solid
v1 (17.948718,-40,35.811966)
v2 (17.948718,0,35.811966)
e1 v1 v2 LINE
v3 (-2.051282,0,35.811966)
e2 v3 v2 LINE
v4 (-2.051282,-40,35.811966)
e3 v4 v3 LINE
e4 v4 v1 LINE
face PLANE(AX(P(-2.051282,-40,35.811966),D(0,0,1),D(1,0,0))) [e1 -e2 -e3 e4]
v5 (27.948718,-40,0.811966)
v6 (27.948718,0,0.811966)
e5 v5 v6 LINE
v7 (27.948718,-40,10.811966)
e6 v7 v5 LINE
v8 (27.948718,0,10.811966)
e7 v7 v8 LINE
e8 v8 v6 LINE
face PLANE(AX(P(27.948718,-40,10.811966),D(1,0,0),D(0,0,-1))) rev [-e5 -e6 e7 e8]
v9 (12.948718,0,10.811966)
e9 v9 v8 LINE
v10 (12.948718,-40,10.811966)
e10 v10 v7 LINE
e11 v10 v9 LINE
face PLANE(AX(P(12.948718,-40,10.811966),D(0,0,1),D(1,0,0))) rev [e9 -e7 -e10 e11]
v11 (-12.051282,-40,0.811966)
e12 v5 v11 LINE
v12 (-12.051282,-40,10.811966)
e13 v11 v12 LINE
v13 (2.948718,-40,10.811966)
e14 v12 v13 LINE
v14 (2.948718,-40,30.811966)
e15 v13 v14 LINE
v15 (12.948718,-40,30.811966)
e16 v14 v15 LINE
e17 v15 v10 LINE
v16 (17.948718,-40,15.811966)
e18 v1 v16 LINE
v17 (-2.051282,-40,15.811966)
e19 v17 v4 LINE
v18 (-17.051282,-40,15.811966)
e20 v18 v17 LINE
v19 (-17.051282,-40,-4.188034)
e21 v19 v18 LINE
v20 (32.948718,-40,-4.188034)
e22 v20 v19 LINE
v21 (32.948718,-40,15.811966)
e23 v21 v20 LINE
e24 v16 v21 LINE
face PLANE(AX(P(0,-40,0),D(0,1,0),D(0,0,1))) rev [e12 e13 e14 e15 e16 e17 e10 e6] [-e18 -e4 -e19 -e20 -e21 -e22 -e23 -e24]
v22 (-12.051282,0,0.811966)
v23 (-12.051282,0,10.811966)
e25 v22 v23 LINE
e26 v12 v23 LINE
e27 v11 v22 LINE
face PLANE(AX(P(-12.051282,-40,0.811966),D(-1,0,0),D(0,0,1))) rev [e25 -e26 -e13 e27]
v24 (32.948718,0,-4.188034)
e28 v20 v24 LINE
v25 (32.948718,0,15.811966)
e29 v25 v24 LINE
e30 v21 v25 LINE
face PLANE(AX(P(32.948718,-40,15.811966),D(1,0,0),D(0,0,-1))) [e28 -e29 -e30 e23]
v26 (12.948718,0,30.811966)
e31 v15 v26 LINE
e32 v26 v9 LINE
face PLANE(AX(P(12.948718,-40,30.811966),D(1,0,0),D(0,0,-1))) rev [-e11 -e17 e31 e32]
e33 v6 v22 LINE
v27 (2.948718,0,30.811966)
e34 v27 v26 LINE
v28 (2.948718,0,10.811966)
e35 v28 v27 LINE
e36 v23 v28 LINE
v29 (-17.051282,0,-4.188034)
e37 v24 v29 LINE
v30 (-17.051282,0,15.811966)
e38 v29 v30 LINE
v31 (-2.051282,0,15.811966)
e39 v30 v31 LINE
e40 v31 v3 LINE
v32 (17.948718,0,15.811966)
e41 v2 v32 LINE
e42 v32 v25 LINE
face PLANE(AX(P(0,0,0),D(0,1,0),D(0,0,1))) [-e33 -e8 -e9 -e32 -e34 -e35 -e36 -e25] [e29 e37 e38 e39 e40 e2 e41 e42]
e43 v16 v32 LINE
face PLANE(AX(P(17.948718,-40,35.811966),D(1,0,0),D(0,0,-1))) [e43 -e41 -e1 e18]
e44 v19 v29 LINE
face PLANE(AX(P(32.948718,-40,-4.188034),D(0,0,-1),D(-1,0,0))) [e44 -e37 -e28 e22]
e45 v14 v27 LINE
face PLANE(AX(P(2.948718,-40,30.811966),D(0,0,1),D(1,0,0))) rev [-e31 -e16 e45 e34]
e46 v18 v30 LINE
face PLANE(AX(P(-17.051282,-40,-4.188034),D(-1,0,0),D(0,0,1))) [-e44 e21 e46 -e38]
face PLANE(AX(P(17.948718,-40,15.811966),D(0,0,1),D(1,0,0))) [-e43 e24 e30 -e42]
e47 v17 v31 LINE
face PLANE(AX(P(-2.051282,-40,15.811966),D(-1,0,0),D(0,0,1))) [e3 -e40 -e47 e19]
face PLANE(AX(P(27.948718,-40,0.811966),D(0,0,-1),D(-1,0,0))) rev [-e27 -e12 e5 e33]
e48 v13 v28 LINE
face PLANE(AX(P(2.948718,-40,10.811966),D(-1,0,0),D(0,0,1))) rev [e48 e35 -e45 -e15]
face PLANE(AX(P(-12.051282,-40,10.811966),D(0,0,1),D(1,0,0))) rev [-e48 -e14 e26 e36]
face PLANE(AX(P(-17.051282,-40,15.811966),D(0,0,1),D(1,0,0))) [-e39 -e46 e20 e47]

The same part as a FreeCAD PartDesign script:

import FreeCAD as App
import Part
import Sketcher

V = App.Vector

doc = App.newDocument("Part")
params = doc.addObject("Spreadsheet::Sheet", "Params")
for row, (alias, value) in enumerate([
    ("sketch1_width", "50 mm"),
    ("sketch1_width2", "15 mm"),
    ("pad1_length", "40 mm"),
    ("sketch2_width", "40 mm"),
    ("sketch2_width2", "15 mm"),
    ("sketch2_height", "20 mm"),
    ("pocket1_length", "40 mm"),
], start=1):
    params.set(f"A{row}", alias)
    params.set(f"B{row}", "=" + value)
    params.setAlias(f"B{row}", alias)

body = doc.addObject("PartDesign::Body", "Body")

sketch1 = body.newObject("Sketcher::SketchObject", "Sketch")
sketch1.AttachmentSupport = (doc.getObject("XZ_Plane"), [""])
sketch1.MapMode = "FlatFace"
sketch1.addGeometry(Part.LineSegment(V(33, -4, 0), V(-17, -4, 0)), False)
sketch1.addGeometry(Part.LineSegment(V(-17, -4, 0), V(-17, 16, 0)), False)
sketch1.addGeometry(Part.LineSegment(V(-17, 16, 0), V(-2, 16, 0)), False)
sketch1.addGeometry(Part.LineSegment(V(-2, 16, 0), V(-2, 36, 0)), False)
sketch1.addGeometry(Part.LineSegment(V(-2, 36, 0), V(18, 36, 0)), False)
sketch1.addGeometry(Part.LineSegment(V(18, 36, 0), V(18, 16, 0)), False)
sketch1.addGeometry(Part.LineSegment(V(18, 16, 0), V(33, 16, 0)), False)
sketch1.addGeometry(Part.LineSegment(V(33, 16, 0), V(33, -4, 0)), False)
sketch1.addConstraint(Sketcher.Constraint("Coincident", 0, 2, 1, 1))
sketch1.addConstraint(Sketcher.Constraint("Coincident", 1, 2, 2, 1))
sketch1.addConstraint(Sketcher.Constraint("Coincident", 2, 2, 3, 1))
sketch1.addConstraint(Sketcher.Constraint("Coincident", 3, 2, 4, 1))
sketch1.addConstraint(Sketcher.Constraint("Coincident", 4, 2, 5, 1))
sketch1.addConstraint(Sketcher.Constraint("Coincident", 5, 2, 6, 1))
sketch1.addConstraint(Sketcher.Constraint("Coincident", 6, 2, 7, 1))
sketch1.addConstraint(Sketcher.Constraint("Coincident", 7, 2, 0, 1))
sketch1.addConstraint(Sketcher.Constraint("Horizontal", 0))
sketch1.addConstraint(Sketcher.Constraint("Vertical", 1))
sketch1.addConstraint(Sketcher.Constraint("Horizontal", 2))
sketch1.addConstraint(Sketcher.Constraint("Vertical", 3))
sketch1.addConstraint(Sketcher.Constraint("Horizontal", 4))
sketch1.addConstraint(Sketcher.Constraint("Vertical", 5))
sketch1.addConstraint(Sketcher.Constraint("Horizontal", 6))
sketch1.addConstraint(Sketcher.Constraint("Vertical", 7))
sketch1.addConstraint(Sketcher.Constraint("Horizontal", 2, 2, 5, 2))
sketch1.addConstraint(Sketcher.Constraint("Equal", 2, 6))
sketch1.addConstraint(Sketcher.Constraint("Equal", 4, 1))
sketch1.addConstraint(Sketcher.Constraint("Equal", 1, 3))
sketch1.addConstraint(Sketcher.Constraint("DistanceX", 0, 2, 0, 1, 50.0))
sketch1.addConstraint(Sketcher.Constraint("DistanceX", 2, 1, 2, 2, 15.0))
sketch1.addConstraint(Sketcher.Constraint("DistanceX", 0, 2, -1, 1, 17.051282))
sketch1.addConstraint(Sketcher.Constraint("DistanceY", 0, 2, -1, 1, 4.188034))
sketch1.setExpression("Constraints[20]", "Params.sketch1_width")
sketch1.setExpression("Constraints[21]", "Params.sketch1_width2")
pad1 = body.newObject("PartDesign::Pad", "Pad")
pad1.Profile = sketch1
pad1.setExpression("Length", "Params.pad1_length")

sketch2 = body.newObject("Sketcher::SketchObject", "Sketch001")
sketch2.AttachmentSupport = (doc.getObject("XZ_Plane"), [""])
sketch2.MapMode = "FlatFace"
sketch2.addGeometry(Part.LineSegment(V(28, 1, 0), V(-12, 1, 0)), False)
sketch2.addGeometry(Part.LineSegment(V(-12, 1, 0), V(-12, 11, 0)), False)
sketch2.addGeometry(Part.LineSegment(V(-12, 11, 0), V(3, 11, 0)), False)
sketch2.addGeometry(Part.LineSegment(V(3, 11, 0), V(3, 31, 0)), False)
sketch2.addGeometry(Part.LineSegment(V(3, 31, 0), V(13, 31, 0)), False)
sketch2.addGeometry(Part.LineSegment(V(13, 31, 0), V(13, 11, 0)), False)
sketch2.addGeometry(Part.LineSegment(V(13, 11, 0), V(28, 11, 0)), False)
sketch2.addGeometry(Part.LineSegment(V(28, 11, 0), V(28, 1, 0)), False)
sketch2.addConstraint(Sketcher.Constraint("Coincident", 0, 2, 1, 1))
sketch2.addConstraint(Sketcher.Constraint("Coincident", 1, 2, 2, 1))
sketch2.addConstraint(Sketcher.Constraint("Coincident", 2, 2, 3, 1))
sketch2.addConstraint(Sketcher.Constraint("Coincident", 3, 2, 4, 1))
sketch2.addConstraint(Sketcher.Constraint("Coincident", 4, 2, 5, 1))
sketch2.addConstraint(Sketcher.Constraint("Coincident", 5, 2, 6, 1))
sketch2.addConstraint(Sketcher.Constraint("Coincident", 6, 2, 7, 1))
sketch2.addConstraint(Sketcher.Constraint("Coincident", 7, 2, 0, 1))
sketch2.addConstraint(Sketcher.Constraint("Horizontal", 0))
sketch2.addConstraint(Sketcher.Constraint("Vertical", 1))
sketch2.addConstraint(Sketcher.Constraint("Horizontal", 2))
sketch2.addConstraint(Sketcher.Constraint("Vertical", 3))
sketch2.addConstraint(Sketcher.Constraint("Horizontal", 4))
sketch2.addConstraint(Sketcher.Constraint("Vertical", 5))
sketch2.addConstraint(Sketcher.Constraint("Horizontal", 6))
sketch2.addConstraint(Sketcher.Constraint("Vertical", 7))
sketch2.addConstraint(Sketcher.Constraint("Horizontal", 2, 2, 5, 2))
sketch2.addConstraint(Sketcher.Constraint("Equal", 2, 6))
sketch2.addConstraint(Sketcher.Constraint("Equal", 4, 1))
sketch2.addConstraint(Sketcher.Constraint("DistanceX", 0, 2, 0, 1, 40.0))
sketch2.addConstraint(Sketcher.Constraint("DistanceX", 2, 1, 2, 2, 15.0))
sketch2.addConstraint(Sketcher.Constraint("DistanceY", 3, 1, 3, 2, 20.0))
sketch2.addConstraint(Sketcher.Constraint("DistanceX", 0, 2, -1, 1, 12.051282))
sketch2.addConstraint(Sketcher.Constraint("DistanceY", -1, 1, 0, 2, 0.811966))
sketch2.setExpression("Constraints[19]", "Params.sketch2_width")
sketch2.setExpression("Constraints[20]", "Params.sketch2_width2")
sketch2.setExpression("Constraints[21]", "Params.sketch2_height")
pocket1 = body.newObject("PartDesign::Pocket", "Pocket")
pocket1.Profile = sketch2
pocket1.setExpression("Length", "Params.pocket1_length")
pocket1.Reversed = True

doc.recompute()
